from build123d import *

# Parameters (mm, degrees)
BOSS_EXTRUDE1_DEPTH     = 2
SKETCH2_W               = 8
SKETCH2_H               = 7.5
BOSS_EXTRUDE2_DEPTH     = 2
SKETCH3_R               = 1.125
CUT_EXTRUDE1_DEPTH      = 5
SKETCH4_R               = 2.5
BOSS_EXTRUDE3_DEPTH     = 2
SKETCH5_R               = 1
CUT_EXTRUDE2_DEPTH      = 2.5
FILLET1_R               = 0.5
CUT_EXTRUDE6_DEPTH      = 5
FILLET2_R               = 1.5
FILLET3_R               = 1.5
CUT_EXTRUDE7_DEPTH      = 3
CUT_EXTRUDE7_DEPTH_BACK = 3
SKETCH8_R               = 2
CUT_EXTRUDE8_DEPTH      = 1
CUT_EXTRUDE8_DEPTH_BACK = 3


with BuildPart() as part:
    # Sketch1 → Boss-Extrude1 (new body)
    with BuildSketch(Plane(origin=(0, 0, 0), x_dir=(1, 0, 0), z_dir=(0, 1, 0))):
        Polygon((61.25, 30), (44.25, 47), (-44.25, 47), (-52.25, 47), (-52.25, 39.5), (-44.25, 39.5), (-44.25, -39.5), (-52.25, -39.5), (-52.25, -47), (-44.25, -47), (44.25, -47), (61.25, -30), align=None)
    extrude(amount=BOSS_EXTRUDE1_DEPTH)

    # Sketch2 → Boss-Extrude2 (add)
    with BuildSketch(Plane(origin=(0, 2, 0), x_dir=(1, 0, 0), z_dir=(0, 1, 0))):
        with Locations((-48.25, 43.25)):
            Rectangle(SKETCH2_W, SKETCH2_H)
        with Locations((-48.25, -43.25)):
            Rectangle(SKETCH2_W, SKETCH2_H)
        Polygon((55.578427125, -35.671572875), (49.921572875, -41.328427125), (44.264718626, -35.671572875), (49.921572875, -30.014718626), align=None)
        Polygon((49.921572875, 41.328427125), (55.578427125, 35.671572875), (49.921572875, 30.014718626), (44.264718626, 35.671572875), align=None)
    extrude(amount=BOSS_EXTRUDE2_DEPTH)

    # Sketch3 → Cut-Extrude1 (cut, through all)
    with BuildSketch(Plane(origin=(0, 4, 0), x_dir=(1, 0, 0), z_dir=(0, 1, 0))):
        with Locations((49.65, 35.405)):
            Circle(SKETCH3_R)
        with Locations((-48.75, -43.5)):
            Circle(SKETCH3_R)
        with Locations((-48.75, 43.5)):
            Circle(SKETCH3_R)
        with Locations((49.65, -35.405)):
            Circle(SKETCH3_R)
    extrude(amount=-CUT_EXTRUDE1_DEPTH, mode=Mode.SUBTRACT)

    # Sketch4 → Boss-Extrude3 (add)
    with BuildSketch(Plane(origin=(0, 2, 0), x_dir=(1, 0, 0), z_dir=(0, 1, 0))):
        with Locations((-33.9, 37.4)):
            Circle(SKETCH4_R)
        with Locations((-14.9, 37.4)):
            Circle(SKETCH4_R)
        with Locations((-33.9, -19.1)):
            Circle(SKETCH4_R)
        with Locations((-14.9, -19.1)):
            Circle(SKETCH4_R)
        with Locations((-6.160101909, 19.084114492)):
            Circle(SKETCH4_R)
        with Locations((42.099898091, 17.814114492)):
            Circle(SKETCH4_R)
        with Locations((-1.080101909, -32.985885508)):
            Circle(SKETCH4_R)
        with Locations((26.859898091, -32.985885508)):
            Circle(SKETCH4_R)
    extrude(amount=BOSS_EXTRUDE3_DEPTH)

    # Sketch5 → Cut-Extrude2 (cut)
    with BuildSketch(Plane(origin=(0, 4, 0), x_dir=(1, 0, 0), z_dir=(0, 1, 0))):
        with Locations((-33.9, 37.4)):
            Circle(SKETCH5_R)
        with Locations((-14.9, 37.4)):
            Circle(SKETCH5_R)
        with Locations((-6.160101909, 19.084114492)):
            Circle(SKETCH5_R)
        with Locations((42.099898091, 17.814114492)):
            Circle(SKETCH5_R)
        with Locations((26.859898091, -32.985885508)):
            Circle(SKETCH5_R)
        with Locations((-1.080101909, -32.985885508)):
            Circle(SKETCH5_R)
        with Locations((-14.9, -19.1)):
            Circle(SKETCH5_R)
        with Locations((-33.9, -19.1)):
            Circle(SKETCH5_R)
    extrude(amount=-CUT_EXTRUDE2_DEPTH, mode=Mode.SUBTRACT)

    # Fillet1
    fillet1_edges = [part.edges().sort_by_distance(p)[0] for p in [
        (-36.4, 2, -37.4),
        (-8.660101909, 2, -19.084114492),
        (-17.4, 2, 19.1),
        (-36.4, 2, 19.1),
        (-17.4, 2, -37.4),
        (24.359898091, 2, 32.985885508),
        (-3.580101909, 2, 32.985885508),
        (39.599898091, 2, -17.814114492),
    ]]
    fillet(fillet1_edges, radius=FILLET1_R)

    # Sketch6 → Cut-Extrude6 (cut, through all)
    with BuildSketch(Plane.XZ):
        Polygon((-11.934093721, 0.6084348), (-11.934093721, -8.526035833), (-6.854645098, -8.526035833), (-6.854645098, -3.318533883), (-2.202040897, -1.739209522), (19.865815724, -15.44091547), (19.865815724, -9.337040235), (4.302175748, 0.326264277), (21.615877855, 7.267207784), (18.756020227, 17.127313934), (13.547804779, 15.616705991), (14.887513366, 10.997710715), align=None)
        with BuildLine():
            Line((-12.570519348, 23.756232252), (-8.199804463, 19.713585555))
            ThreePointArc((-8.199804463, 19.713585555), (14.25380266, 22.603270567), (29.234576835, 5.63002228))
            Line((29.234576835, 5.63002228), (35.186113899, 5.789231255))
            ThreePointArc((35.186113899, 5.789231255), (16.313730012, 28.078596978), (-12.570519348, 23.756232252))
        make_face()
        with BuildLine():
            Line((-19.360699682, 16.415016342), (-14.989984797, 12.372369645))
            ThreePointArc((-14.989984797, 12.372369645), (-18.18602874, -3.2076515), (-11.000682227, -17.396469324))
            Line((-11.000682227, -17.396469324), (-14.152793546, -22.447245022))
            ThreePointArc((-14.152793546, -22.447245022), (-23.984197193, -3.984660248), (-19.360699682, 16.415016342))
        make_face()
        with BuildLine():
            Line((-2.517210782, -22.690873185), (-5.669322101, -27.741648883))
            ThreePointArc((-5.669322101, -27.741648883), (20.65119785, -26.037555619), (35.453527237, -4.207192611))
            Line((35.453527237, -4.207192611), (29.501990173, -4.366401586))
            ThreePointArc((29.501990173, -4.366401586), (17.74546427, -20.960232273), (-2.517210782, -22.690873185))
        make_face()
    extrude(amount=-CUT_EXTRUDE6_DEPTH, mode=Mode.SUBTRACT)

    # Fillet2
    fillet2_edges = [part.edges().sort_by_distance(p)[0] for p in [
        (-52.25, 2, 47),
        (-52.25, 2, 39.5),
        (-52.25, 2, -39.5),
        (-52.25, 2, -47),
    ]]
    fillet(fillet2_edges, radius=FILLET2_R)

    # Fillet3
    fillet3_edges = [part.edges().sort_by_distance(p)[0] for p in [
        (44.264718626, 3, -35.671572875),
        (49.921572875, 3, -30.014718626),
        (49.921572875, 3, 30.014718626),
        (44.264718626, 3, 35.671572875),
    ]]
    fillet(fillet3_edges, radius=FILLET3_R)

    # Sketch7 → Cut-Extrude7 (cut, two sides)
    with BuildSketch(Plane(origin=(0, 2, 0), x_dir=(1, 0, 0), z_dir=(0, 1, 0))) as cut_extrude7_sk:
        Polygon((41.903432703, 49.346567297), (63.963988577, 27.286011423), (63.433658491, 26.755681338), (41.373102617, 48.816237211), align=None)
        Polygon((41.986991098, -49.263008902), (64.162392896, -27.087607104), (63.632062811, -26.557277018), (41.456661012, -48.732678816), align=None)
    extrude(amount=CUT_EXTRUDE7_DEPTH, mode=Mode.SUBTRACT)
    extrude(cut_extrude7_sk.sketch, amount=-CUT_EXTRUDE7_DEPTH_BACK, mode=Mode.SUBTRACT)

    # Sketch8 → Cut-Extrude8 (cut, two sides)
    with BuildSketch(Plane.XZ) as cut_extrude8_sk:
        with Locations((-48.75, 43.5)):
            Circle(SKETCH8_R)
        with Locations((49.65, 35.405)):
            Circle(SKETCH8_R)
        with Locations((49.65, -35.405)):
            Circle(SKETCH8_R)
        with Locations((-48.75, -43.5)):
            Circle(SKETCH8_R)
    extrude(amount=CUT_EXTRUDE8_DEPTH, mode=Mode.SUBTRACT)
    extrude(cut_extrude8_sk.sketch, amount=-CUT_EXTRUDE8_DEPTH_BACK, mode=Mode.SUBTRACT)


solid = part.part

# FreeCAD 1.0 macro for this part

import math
import FreeCAD as App
import Part
import Sketcher
from FreeCAD import Vector
Q = App.Units.Quantity


def edges_at(feature, points):
    """Names of the edges that pass closest to the given points."""
    edges = feature.Shape.Edges
    near = lambda p: min(range(len(edges)), key=lambda i: edges[i].distToShape(Part.Vertex(*p))[0])
    return sorted({f"Edge{near(p) + 1}" for p in points})


def add_polygon(sketch, points):
    """Adds a closed chain of lines whose ends are joined by coincident constraints."""
    first, n = sketch.GeometryCount, len(points)
    for a, b in zip(points, points[1:] + points[:1]):
        sketch.addGeometry(Part.LineSegment(App.Vector(*a, 0), App.Vector(*b, 0)), False)
    for i in range(n):
        sketch.addConstraint(Sketcher.Constraint("Coincident", first + i, 2, first + (i + 1) % n, 1))

doc = App.newDocument("Part")
body = doc.addObject("PartDesign::Body", "Body")

sketch1 = body.newObject("Sketcher::SketchObject", "Sketch")
sketch1.AttachmentSupport = (doc.getObject("XZ_Plane"), [""])
sketch1.MapMode = "FlatFace"
add_polygon(sketch1, [(61.25, -30), (44.25, -47), (-52.25, -47), (-52.25, -39.5), (-44.25, -39.5), (-44.25, 39.5), (-52.25, 39.5), (-52.25, 47), (44.25, 47), (61.25, 30)])
sketch1.addConstraint([
    Sketcher.Constraint("Horizontal", 1),
    Sketcher.Constraint("Vertical", 2),
    Sketcher.Constraint("Horizontal", 3),
    Sketcher.Constraint("Vertical", 4),
    Sketcher.Constraint("Horizontal", 5),
    Sketcher.Constraint("Vertical", 6),
    Sketcher.Constraint("Horizontal", 7),
    Sketcher.Constraint("Vertical", 9),
    Sketcher.Constraint("Symmetric", 2, 2, 5, 2, -1),
    Sketcher.Constraint("Symmetric", 0, 2, 7, 2, -1),
    Sketcher.Constraint("Perpendicular", 0, 8),
    Sketcher.Constraint("Equal", 0, 8),
    Sketcher.Constraint("DistanceX", 3, 1, 3, 2, 8.0),
    Sketcher.Constraint("DistanceY", 4, 1, 4, 2, 79.0),
    Sketcher.Constraint("DistanceY", 9, 2, 9, 1, 60.0),
    Sketcher.Constraint("DistanceX", 1, 2, 1, 1, 96.5),
    Sketcher.Constraint("DistanceY", 2, 1, 2, 2, 7.5),
    Sketcher.Constraint("DistanceX", -1, 1, 0, 2, 44.25),
])
pad1 = body.newObject("PartDesign::Pad", "Pad")
pad1.Profile = sketch1
pad1.Length = 2
pad1.Reversed = True

sketch2 = body.newObject("Sketcher::SketchObject", "Sketch001")
sketch2.AttachmentSupport = (doc.getObject("XZ_Plane"), [""])
sketch2.MapMode = "FlatFace"
sketch2.AttachmentOffset = App.Placement(Vector(0, 0, -2), App.Rotation())
add_polygon(sketch2, [(-52.25, -47), (-52.25, -39.5), (-44.25, -39.5), (-44.25, -47)])
add_polygon(sketch2, [(-52.25, 39.5), (-52.25, 47), (-44.25, 47), (-44.25, 39.5)])
add_polygon(sketch2, [(49.921573, 41.328427), (55.578427, 35.671573), (49.921573, 30.014719), (44.264719, 35.671573)])
add_polygon(sketch2, [(55.578427, -35.671573), (49.921573, -41.328427), (44.264719, -35.671573), (49.921573, -30.014719)])
sketch2.addConstraint([
    Sketcher.Constraint("Vertical", 0),
    Sketcher.Constraint("Horizontal", 1),
    Sketcher.Constraint("Vertical", 2),
    Sketcher.Constraint("Horizontal", 3),
    Sketcher.Constraint("Vertical", 4),
    Sketcher.Constraint("Horizontal", 5),
    Sketcher.Constraint("Vertical", 6),
    Sketcher.Constraint("Horizontal", 7),
    Sketcher.Constraint("Symmetric", 3, 2, 4, 2, -1),
    Sketcher.Constraint("Symmetric", 1, 2, 6, 2, -1),
    Sketcher.Constraint("Symmetric", 11, 2, 12, 2, -1),
    Sketcher.Constraint("Symmetric", 10, 2, 13, 2, -1),
    Sketcher.Constraint("Symmetric", 9, 2, 14, 2, -1),
    Sketcher.Constraint("Symmetric", 8, 2, 15, 2, -1),
    Sketcher.Constraint("Perpendicular", 8, 9),
    Sketcher.Constraint("Perpendicular", 9, 10),
    Sketcher.Constraint("Perpendicular", 10, 11),
    Sketcher.Constraint("Parallel", 11, 12),
    Sketcher.Constraint("Horizontal", 8, 2, 10, 2),
    Sketcher.Constraint("DistanceX", 1, 1, 1, 2, 8.0),
    Sketcher.Constraint("Distance", 8, 8.0),
    Sketcher.Constraint("DistanceY", 0, 1, 0, 2, 7.5),
    Sketcher.Constraint("DistanceY", 2, 2, -1, 1, 47.0),
    Sketcher.Constraint("DistanceY", 12, 2, 10, 2, 77.0),
    Sketcher.Constraint("DistanceX", 0, 2, -1, 1, 52.25),
    Sketcher.Constraint("DistanceX", -1, 1, 10, 2, 44.264719),
])
pad2 = body.newObject("PartDesign::Pad", "Pad001")
pad2.Profile = sketch2
pad2.Length = 2
pad2.Reversed = True

sketch3 = body.newObject("Sketcher::SketchObject", "Sketch002")
sketch3.AttachmentSupport = (doc.getObject("XZ_Plane"), [""])
sketch3.MapMode = "FlatFace"
sketch3.AttachmentOffset = App.Placement(Vector(0, 0, -4), App.Rotation())
sketch3.addGeometry([
    Part.Circle(Vector(49.65, -35.405, 0), Vector(0, 0, 1), 1.125),
    Part.Circle(Vector(-48.75, 43.5, 0), Vector(0, 0, 1), 1.125),
    Part.Circle(Vector(-48.75, -43.5, 0), Vector(0, 0, 1), 1.125),
    Part.Circle(Vector(49.65, 35.405, 0), Vector(0, 0, 1), 1.125),
], False)
sketch3.addConstraint([
    Sketcher.Constraint("Equal", 0, 1),
    Sketcher.Constraint("Equal", 1, 2),
    Sketcher.Constraint("Equal", 2, 3),
    Sketcher.Constraint("Symmetric", 1, 3, 2, 3, -1),
    Sketcher.Constraint("Symmetric", 0, 3, 3, 3, -1),
    Sketcher.Constraint("Diameter", 0, 2.25),
    Sketcher.Constraint("DistanceY", 2, 3, 1, 3, 87.0),
    Sketcher.Constraint("DistanceX", 1, 3, 0, 3, 98.4),
    Sketcher.Constraint("DistanceX", -1, 1, 0, 3, 49.65),
    Sketcher.Constraint("DistanceY", 0, 3, 3, 3, 70.81),
])
pocket1 = body.newObject("PartDesign::Pocket", "Pocket")
pocket1.Profile = sketch3
pocket1.Type = "ThroughAll"
pocket1.Reversed = True

sketch4 = body.newObject("Sketcher::SketchObject", "Sketch003")
sketch4.AttachmentSupport = (doc.getObject("XZ_Plane"), [""])
sketch4.MapMode = "FlatFace"
sketch4.AttachmentOffset = App.Placement(Vector(0, 0, -2), App.Rotation())
sketch4.addGeometry([
    Part.Circle(Vector(-33.9, -37.4, 0), Vector(0, 0, 1), 2.5),
    Part.Circle(Vector(-14.9, -37.4, 0), Vector(0, 0, 1), 2.5),
    Part.Circle(Vector(-33.9, 19.1, 0), Vector(0, 0, 1), 2.5),
    Part.Circle(Vector(-14.9, 19.1, 0), Vector(0, 0, 1), 2.5),
    Part.Circle(Vector(-6.160102, -19.084114, 0), Vector(0, 0, 1), 2.5),
    Part.Circle(Vector(42.099898, -17.814114, 0), Vector(0, 0, 1), 2.5),
    Part.Circle(Vector(-1.080102, 32.985886, 0), Vector(0, 0, 1), 2.5),
    Part.Circle(Vector(26.859898, 32.985886, 0), Vector(0, 0, 1), 2.5),
], False)
sketch4.addConstraint([
    Sketcher.Constraint("Equal", 0, 1),
    Sketcher.Constraint("Equal", 1, 2),
    Sketcher.Constraint("Equal", 2, 3),
    Sketcher.Constraint("Equal", 3, 4),
    Sketcher.Constraint("Equal", 4, 5),
    Sketcher.Constraint("Equal", 5, 6),
    Sketcher.Constraint("Equal", 6, 7),
    Sketcher.Constraint("Horizontal", 0, 3, 1, 3),
    Sketcher.Constraint("Horizontal", 2, 3, 3, 3),
    Sketcher.Constraint("Horizontal", 6, 3, 7, 3),
    Sketcher.Constraint("Vertical", 0, 3, 2, 3),
    Sketcher.Constraint("Vertical", 1, 3, 3, 3),
    Sketcher.Constraint("Diameter", 0, 5.0),
    Sketcher.Constraint("DistanceX", 0, 3, 1, 3, 19.0),
    Sketcher.Constraint("DistanceX", 0, 3, -1, 1, 33.9),
    Sketcher.Constraint("DistanceY", 0, 3, -1, 1, 37.4),
    Sketcher.Constraint("DistanceY", -1, 1, 2, 3, 19.1),
    Sketcher.Constraint("DistanceY", 5, 3, 6, 3, 50.8),
    Sketcher.Constraint("DistanceX", 4, 3, 5, 3, 48.26),
    Sketcher.Constraint("DistanceY", 4, 3, 5, 3, 1.27),
    Sketcher.Constraint("DistanceX", 4, 3, 6, 3, 5.08),
    Sketcher.Constraint("DistanceX", 6, 3, 7, 3, 27.94),
    Sketcher.Constraint("DistanceX", 4, 3, -1, 1, 6.160102),
    Sketcher.Constraint("DistanceY", 4, 3, -1, 1, 19.084114),
])
pad3 = body.newObject("PartDesign::Pad", "Pad002")
pad3.Profile = sketch4
pad3.Length = 2
pad3.Reversed = True

sketch5 = body.newObject("Sketcher::SketchObject", "Sketch004")
sketch5.AttachmentSupport = (doc.getObject("XZ_Plane"), [""])
sketch5.MapMode = "FlatFace"
sketch5.AttachmentOffset = App.Placement(Vector(0, 0, -4), App.Rotation())
sketch5.addGeometry([
    Part.Circle(Vector(-33.9, -37.4, 0), Vector(0, 0, 1), 1),
    Part.Circle(Vector(-14.9, -37.4, 0), Vector(0, 0, 1), 1),
    Part.Circle(Vector(-6.160102, -19.084114, 0), Vector(0, 0, 1), 1),
    Part.Circle(Vector(42.099898, -17.814114, 0), Vector(0, 0, 1), 1),
    Part.Circle(Vector(26.859898, 32.985886, 0), Vector(0, 0, 1), 1),
    Part.Circle(Vector(-1.080102, 32.985886, 0), Vector(0, 0, 1), 1),
    Part.Circle(Vector(-14.9, 19.1, 0), Vector(0, 0, 1), 1),
    Part.Circle(Vector(-33.9, 19.1, 0), Vector(0, 0, 1), 1),
], False)
sketch5.addConstraint([
    Sketcher.Constraint("Equal", 0, 1),
    Sketcher.Constraint("Equal", 1, 2),
    Sketcher.Constraint("Equal", 2, 3),
    Sketcher.Constraint("Equal", 3, 4),
    Sketcher.Constraint("Equal", 4, 5),
    Sketcher.Constraint("Equal", 5, 6),
    Sketcher.Constraint("Equal", 6, 7),
    Sketcher.Constraint("Horizontal", 0, 3, 1, 3),
    Sketcher.Constraint("Horizontal", 4, 3, 5, 3),
    Sketcher.Constraint("Horizontal", 6, 3, 7, 3),
    Sketcher.Constraint("Vertical", 1, 3, 6, 3),
    Sketcher.Constraint("Vertical", 0, 3, 7, 3),
    Sketcher.Constraint("Diameter", 0, 2.0),
    Sketcher.Constraint("DistanceX", 0, 3, 1, 3, 19.0),
    Sketcher.Constraint("DistanceX", 0, 3, -1, 1, 33.9),
    Sketcher.Constraint("DistanceY", 0, 3, -1, 1, 37.4),
    Sketcher.Constraint("DistanceY", -1, 1, 6, 3, 19.1),
    Sketcher.Constraint("DistanceY", 3, 3, 4, 3, 50.8),
    Sketcher.Constraint("DistanceX", 2, 3, 3, 3, 48.26),
    Sketcher.Constraint("DistanceY", 2, 3, 3, 3, 1.27),
    Sketcher.Constraint("DistanceX", 4, 3, 3, 3, 15.24),
    Sketcher.Constraint("DistanceX", 5, 3, 4, 3, 27.94),
    Sketcher.Constraint("DistanceX", 2, 3, -1, 1, 6.160102),
    Sketcher.Constraint("DistanceY", 2, 3, -1, 1, 19.084114),
])
pocket2 = body.newObject("PartDesign::Pocket", "Pocket001")
pocket2.Profile = sketch5
pocket2.Length = 2.5
pocket2.Reversed = True
doc.recompute()

fillet = body.newObject("PartDesign::Fillet", "Fillet")
fillet.Base = (pocket2, edges_at(pocket2, [
    (-36.4, 2, -37.4),
    (-8.66, 2, -19.084),
    (-17.4, 2, 19.1),
    (-36.4, 2, 19.1),
    (-17.4, 2, -37.4),
    (24.36, 2, 32.986),
    (-3.58, 2, 32.986),
    (39.6, 2, -17.814),
]))
fillet.Radius = 0.5

sketch6 = body.newObject("Sketcher::SketchObject", "Sketch005")
sketch6.AttachmentSupport = (doc.getObject("XZ_Plane"), [""])
sketch6.MapMode = "FlatFace"
add_polygon(sketch6, [(-11.934094, 0.608435), (-11.934094, -8.526036), (-6.854645, -8.526036), (-6.854645, -3.318534), (-2.202041, -1.73921), (19.865816, -15.440915), (19.865816, -9.33704), (4.302176, 0.326264), (21.615878, 7.267208), (18.75602, 17.127314), (13.547805, 15.616706), (14.887513, 10.997711)])
sketch6.addGeometry(Part.LineSegment(Vector(-12.570519, 23.756232, 0), Vector(-8.199804, 19.713586, 0)), False)
sketch6.addGeometry(Part.ArcOfCircle(Part.Circle(Vector(5.75, 0, 0), Vector(0, 0, 1), 24.15), math.radians(13.481254), math.radians(125.284138)), False)
sketch6.addGeometry(Part.LineSegment(Vector(29.234577, 5.630022, 0), Vector(35.186114, 5.789231, 0)), False)
sketch6.addGeometry(Part.ArcOfCircle(Part.Circle(Vector(5.75, 0, 0), Vector(0, 0, 1), 30), math.radians(11.126416), math.radians(127.638975)), False)
sketch6.addGeometry(Part.LineSegment(Vector(-14.989985, 12.37237, 0), Vector(-19.3607, 16.415016, 0)), False)
sketch6.addGeometry(Part.ArcOfCircle(Part.Circle(Vector(5.75, 0, 0), Vector(0, 0, 1), 30), math.radians(146.827112), math.radians(228.43828)), False)
sketch6.addGeometry(Part.LineSegment(Vector(-14.152794, -22.447245, 0), Vector(-11.000682, -17.396469, 0)), False)
sketch6.addGeometry(Part.ArcOfCircle(Part.Circle(Vector(5.75, 0, 0), Vector(0, 0, 1), 24.15), math.radians(149.18195), math.radians(226.083442)), False)
sketch6.addGeometry(Part.LineSegment(Vector(-2.517211, -22.690873, 0), Vector(-5.669322, -27.741649, 0)), False)
sketch6.addGeometry(Part.ArcOfCircle(Part.Circle(Vector(5.75, 0, 0), Vector(0, 0, 1), 30), math.radians(-112.373584), math.radians(-8.06172)), False)
sketch6.addGeometry(Part.LineSegment(Vector(35.453527, -4.207193, 0), Vector(29.50199, -4.366402, 0)), False)
sketch6.addGeometry(Part.ArcOfCircle(Part.Circle(Vector(5.75, 0, 0), Vector(0, 0, 1), 24.15), math.radians(-110.018746), math.radians(-10.416558)), False)
sketch6.addConstraint([
    Sketcher.Constraint("Coincident", 12, 2, 13, 2),
    Sketcher.Constraint("Coincident", 13, 1, 14, 1),
    Sketcher.Constraint("Coincident", 14, 2, 15, 1),
    Sketcher.Constraint("Coincident", 15, 2, 12, 1),
    Sketcher.Constraint("Coincident", 16, 2, 17, 1),
    Sketcher.Constraint("Coincident", 17, 2, 18, 1),
    Sketcher.Constraint("Coincident", 18, 2, 19, 2),
    Sketcher.Constraint("Coincident", 19, 1, 16, 1),
    Sketcher.Constraint("Coincident", 20, 2, 21, 1),
    Sketcher.Constraint("Coincident", 21, 2, 22, 1),
    Sketcher.Constraint("Coincident", 22, 2, 23, 2),
    Sketcher.Constraint("Coincident", 23, 1, 20, 1),
    Sketcher.Constraint("Vertical", 0),
    Sketcher.Constraint("Horizontal", 1),
    Sketcher.Constraint("Vertical", 2),
    Sketcher.Constraint("Vertical", 5),
    Sketcher.Constraint("Coincident", 15, 3, 13, 3),
    Sketcher.Constraint("Coincident", 17, 3, 13, 3),
    Sketcher.Constraint("Coincident", 19, 3, 13, 3),
    Sketcher.Constraint("Coincident", 21, 3, 13, 3),
    Sketcher.Constraint("Coincident", 23, 3, 13, 3),
    Sketcher.Constraint("Equal", 15, 17),
    Sketcher.Constraint("Equal", 13, 19),
    Sketcher.Constraint("Equal", 17, 21),
    Sketcher.Constraint("Equal", 19, 23),
    Sketcher.Constraint("PointOnObject", 13, 3, -1),
    Sketcher.Constraint("Parallel", 4, 6),
    Sketcher.Constraint("Perpendicular", 8, 9),
    Sketcher.Constraint("Perpendicular", 9, 10),
    Sketcher.Constraint("Parallel", 12, 16),
    Sketcher.Constraint("Parallel", 18, 20),
    Sketcher.Constraint("Parallel", 14, 22),
    Sketcher.Constraint("Equal", 12, 14),
    Sketcher.Constraint("Equal", 14, 16),
    Sketcher.Constraint("Equal", 16, 18),
    Sketcher.Constraint("Equal", 18, 20),
    Sketcher.Constraint("Equal", 20, 22),
    Sketcher.Constraint("Radius", 15, 30.0),
    Sketcher.Constraint("Radius", 13, 24.15),
    Sketcher.Constraint("DistanceX", -1, 1, 13, 3, 5.75),
    Sketcher.Constraint("DistanceY", 2, 1, 2, 2, 5.207502),
    Sketcher.Constraint("DistanceX", 1, 1, 1, 2, 5.079449),
    Sketcher.Constraint("DistanceY", 0, 2, 0, 1, 9.134471),
    Sketcher.Constraint("DistanceX", 16, 2, -1, 1, 19.3607),
    Sketcher.Constraint("DistanceY", 22, 2, -1, 1, 4.366402),
    Sketcher.Constraint("DistanceY", 7, 2, 9, 2, 8.349498),
    Sketcher.Constraint("DistanceX", 7, 2, 13, 1, 7.618699),
    Sketcher.Constraint("DistanceX", 10, 2, 14, 2, 20.298601),
    Sketcher.Constraint("DistanceX", 5, 2, 14, 2, 15.320298),
    Sketcher.Constraint("DistanceX", 17, 2, 0, 2, 2.2187),
    Sketcher.Constraint("DistanceY", 21, 2, 7, 2, 11.4744),
    Sketcher.Constraint("Distance", 3, 4.913348),
    Sketcher.Constraint("Distance", 4, 25.975508),
    Sketcher.Constraint("Distance", 6, 18.319562),
    Sketcher.Constraint("Distance", 10, 4.809359),
    Sketcher.Constraint("DistanceY", 5, 1, 5, 2, 6.103875),
    Sketcher.Constraint("DistanceX", 3, 2, -1, 1, 2.202041),
    Sketcher.Constraint("DistanceY", 3, 2, -1, 1, 1.73921),
    Sketcher.Constraint("DistanceY", 5, 2, -1, 1, 9.33704),
    Sketcher.Constraint("DistanceX", -1, 1, 8, 2, 18.75602),
    Sketcher.Constraint("DistanceY", 18, 2, -1, 1, 17.396469),
])
pocket3 = body.newObject("PartDesign::Pocket", "Pocket002")
pocket3.Profile = sketch6
pocket3.Type = "ThroughAll"
doc.recompute()

fillet2 = body.newObject("PartDesign::Fillet", "Fillet001")
fillet2.Base = (pocket3, edges_at(pocket3, [
    (-52.25, 2, 47),
    (-52.25, 2, 39.5),
    (-52.25, 2, -39.5),
    (-52.25, 2, -47),
]))
fillet2.Radius = 1.5
doc.recompute()

fillet3 = body.newObject("PartDesign::Fillet", "Fillet002")
fillet3.Base = (fillet2, edges_at(fillet2, [
    (44.265, 3, -35.672),
    (49.922, 3, -30.015),
    (49.922, 3, 30.015),
    (44.265, 3, 35.672),
]))
fillet3.Radius = 1.5

sketch7 = body.newObject("Sketcher::SketchObject", "Sketch006")
sketch7.AttachmentSupport = (doc.getObject("XZ_Plane"), [""])
sketch7.MapMode = "FlatFace"
sketch7.AttachmentOffset = App.Placement(Vector(0, 0, -2), App.Rotation())
add_polygon(sketch7, [(63.963989, -27.286011), (41.903433, -49.346567), (41.373103, -48.816237), (63.433658, -26.755681)])
add_polygon(sketch7, [(41.986991, 49.263009), (64.162393, 27.087607), (63.632063, 26.557277), (41.456661, 48.732679)])
sketch7.addConstraint([
    Sketcher.Constraint("Perpendicular", 0, 1),
    Sketcher.Constraint("Perpendicular", 1, 2),
    Sketcher.Constraint("Perpendicular", 2, 3),
    Sketcher.Constraint("Parallel", 3, 4),
    Sketcher.Constraint("Perpendicular", 4, 5),
    Sketcher.Constraint("Perpendicular", 5, 6),
    Sketcher.Constraint("Perpendicular", 6, 7),
    Sketcher.Constraint("Equal", 3, 5),
    Sketcher.Constraint("Angle", 0, Q("-135 deg")),
    Sketcher.Constraint("Distance", 1, 0.75),
    Sketcher.Constraint("DistanceX", 6, 2, 5, 2, 22.175402),
    Sketcher.Constraint("DistanceX", -1, 1, 2, 2, 63.433658),
    Sketcher.Constraint("DistanceY", 2, 2, -1, 1, 26.755681),
    Sketcher.Constraint("DistanceX", -1, 1, 6, 2, 41.456661),
    Sketcher.Constraint("DistanceY", -1, 1, 6, 2, 48.732679),
    Sketcher.Constraint("DistanceX", 1, 2, 4, 2, 22.78929),
])
pocket4 = body.newObject("PartDesign::Pocket", "Pocket003")
pocket4.Profile = sketch7
pocket4.Type = "ThroughAll"
pocket4.Midplane = True

sketch8 = body.newObject("Sketcher::SketchObject", "Sketch007")
sketch8.AttachmentSupport = (doc.getObject("XZ_Plane"), [""])
sketch8.MapMode = "FlatFace"
sketch8.addGeometry([
    Part.Circle(Vector(-48.75, 43.5, 0), Vector(0, 0, 1), 2),
    Part.Circle(Vector(49.65, 35.405, 0), Vector(0, 0, 1), 2),
    Part.Circle(Vector(49.65, -35.405, 0), Vector(0, 0, 1), 2),
    Part.Circle(Vector(-48.75, -43.5, 0), Vector(0, 0, 1), 2),
], False)
sketch8.addConstraint([
    Sketcher.Constraint("Equal", 0, 1),
    Sketcher.Constraint("Equal", 1, 2),
    Sketcher.Constraint("Equal", 2, 3),
    Sketcher.Constraint("Symmetric", 1, 3, 2, 3, -1),
    Sketcher.Constraint("Symmetric", 0, 3, 3, 3, -1),
    Sketcher.Constraint("Diameter", 0, 4.0),
    Sketcher.Constraint("DistanceY", 3, 3, 0, 3, 87.0),
    Sketcher.Constraint("DistanceX", 0, 3, 1, 3, 98.4),
    Sketcher.Constraint("DistanceX", 0, 3, -1, 1, 48.75),
    Sketcher.Constraint("DistanceY", 2, 3, 1, 3, 70.81),
])
pocket5 = body.newObject("PartDesign::Pocket", "Pocket004")
pocket5.Profile = sketch8
pocket5.Type = "TwoLengths"
pocket5.Length = 1
pocket5.Length2 = 3
pocket5.Reversed = True

doc.recompute()
